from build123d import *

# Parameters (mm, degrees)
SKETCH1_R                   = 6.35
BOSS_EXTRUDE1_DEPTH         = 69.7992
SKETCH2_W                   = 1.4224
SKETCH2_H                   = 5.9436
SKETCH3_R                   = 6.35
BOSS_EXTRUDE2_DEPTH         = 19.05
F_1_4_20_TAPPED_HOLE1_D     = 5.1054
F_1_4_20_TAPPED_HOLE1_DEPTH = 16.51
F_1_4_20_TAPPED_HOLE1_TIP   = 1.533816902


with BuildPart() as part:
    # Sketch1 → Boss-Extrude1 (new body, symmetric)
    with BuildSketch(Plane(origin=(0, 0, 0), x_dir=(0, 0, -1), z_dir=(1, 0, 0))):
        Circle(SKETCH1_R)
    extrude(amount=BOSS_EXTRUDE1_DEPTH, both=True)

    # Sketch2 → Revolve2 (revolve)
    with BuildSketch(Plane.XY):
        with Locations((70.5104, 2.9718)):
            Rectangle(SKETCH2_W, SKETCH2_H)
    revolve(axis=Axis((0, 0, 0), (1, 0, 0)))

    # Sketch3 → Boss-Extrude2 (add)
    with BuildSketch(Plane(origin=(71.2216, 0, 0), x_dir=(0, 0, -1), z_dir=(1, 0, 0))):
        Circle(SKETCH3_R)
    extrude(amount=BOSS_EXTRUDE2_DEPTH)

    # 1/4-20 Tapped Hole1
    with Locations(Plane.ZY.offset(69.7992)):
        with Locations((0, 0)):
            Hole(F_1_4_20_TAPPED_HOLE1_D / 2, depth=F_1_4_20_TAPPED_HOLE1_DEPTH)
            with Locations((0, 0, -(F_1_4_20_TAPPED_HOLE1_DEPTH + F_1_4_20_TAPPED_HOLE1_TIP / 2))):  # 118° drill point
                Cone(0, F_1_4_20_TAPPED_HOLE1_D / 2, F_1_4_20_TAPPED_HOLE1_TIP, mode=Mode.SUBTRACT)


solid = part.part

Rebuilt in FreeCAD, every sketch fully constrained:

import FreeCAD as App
import Part
import Sketcher

V = App.Vector
Q = App.Units.Quantity


def add_polygon(sketch, points):
    """Adds a closed chain of lines whose ends are joined by coincident constraints."""
    first, n = sketch.GeometryCount, len(points)
    for a, b in zip(points, points[1:] + points[:1]):
        sketch.addGeometry(Part.LineSegment(App.Vector(*a, 0), App.Vector(*b, 0)), False)
    for i in range(n):
        sketch.addConstraint(Sketcher.Constraint("Coincident", first + i, 2, first + (i + 1) % n, 1))

doc = App.newDocument("Part")
body = doc.addObject("PartDesign::Body", "Body")

# Sketch on YZ plane
sketch1 = doc.addObject("Sketcher::SketchObject", "Sketch")
body.addObject(sketch1)
sketch1.AttachmentSupport = (doc.YZ_Plane, [""])
sketch1.MapMode = "FlatFace"
sketch1.addGeometry(Part.Circle(V(0, 0, 0), V(0, 0, 1), 6), False)
sketch1.addConstraint([
    Sketcher.Constraint("Coincident", 0, 3, -1, 1),
    Sketcher.Constraint("Diameter", 0, Q("0.5 in")),
])
pad1 = doc.addObject("PartDesign::Pad", "Pad")
body.addObject(pad1)
pad1.Profile = sketch1
pad1.Length = Q("5.496 in")
pad1.Midplane = True

# Sketch on XY plane
sketch2 = doc.addObject("Sketcher::SketchObject", "Sketch001")
body.addObject(sketch2)
sketch2.AttachmentSupport = (doc.XY_Plane, [""])
sketch2.MapMode = "FlatFace"
add_polygon(sketch2, [(69.8, 5.9), (69.8, 0), (71.2, 0), (71.2, 5.9)])  # lines 0-3
sketch2.addConstraint([
    Sketcher.Constraint("Vertical", 0),
    Sketcher.Constraint("Horizontal", 1),
    Sketcher.Constraint("Vertical", 2),
    Sketcher.Constraint("Horizontal", 3),
    Sketcher.Constraint("PointOnObject", 0, 2, -1),
    Sketcher.Constraint("DistanceX", 1, 1, 1, 2, Q("0.056 in")),
    Sketcher.Constraint("DistanceY", 0, 2, 0, 1, Q("0.234 in")),
    Sketcher.Constraint("DistanceX", -1, 1, 0, 2, Q("2.748 in")),
])
revolution = doc.addObject("PartDesign::Revolution", "Revolution")
body.addObject(revolution)
revolution.Profile = sketch2
revolution.ReferenceAxis = (sketch2, ["H_Axis"])
revolution.Angle = 360

# Sketch on YZ plane
sketch3 = doc.addObject("Sketcher::SketchObject", "Sketch002")
body.addObject(sketch3)
sketch3.AttachmentSupport = (doc.YZ_Plane, [""])
sketch3.MapMode = "FlatFace"
sketch3.AttachmentOffset = App.Placement(V(0, 0, 2.804 * 25.4), App.Rotation())
sketch3.addGeometry(Part.Circle(V(0, 0, 0), V(0, 0, 1), 6), False)
sketch3.addConstraint([
    Sketcher.Constraint("Coincident", 0, 3, -1, 1),
    Sketcher.Constraint("Diameter", 0, Q("0.5 in")),
])
pad2 = doc.addObject("PartDesign::Pad", "Pad001")
body.addObject(pad2)
pad2.Profile = sketch3
pad2.Length = Q("0.75 in")

# Sketch on YZ plane
sketch4 = doc.addObject("Sketcher::SketchObject", "Sketch003")
body.addObject(sketch4)
sketch4.AttachmentSupport = (doc.YZ_Plane, [""])
sketch4.MapMode = "FlatFace"
sketch4.AttachmentOffset = App.Placement(V(0, 0, -2.748 * 25.4), App.Rotation())
sketch4.addGeometry(Part.Circle(V(0, 0, 0), V(0, 0, 1), 2.6), False)
sketch4.addConstraint([
    Sketcher.Constraint("Coincident", 0, 3, -1, 1),
    Sketcher.Constraint("Diameter", 0, Q("0.201 in")),
])
doc.recompute()
hole = doc.addObject("PartDesign::Hole", "Hole")
body.addObject(hole)
hole.Profile = sketch4
hole.ThreadType = "None"
hole.Diameter = Q("0.201 in")
hole.DepthType = "Dimension"
hole.Depth = Q("0.65 in")
hole.DrillPoint = "Angled"
hole.DrillPointAngle = 118
hole.Reversed = True

doc.recompute()
